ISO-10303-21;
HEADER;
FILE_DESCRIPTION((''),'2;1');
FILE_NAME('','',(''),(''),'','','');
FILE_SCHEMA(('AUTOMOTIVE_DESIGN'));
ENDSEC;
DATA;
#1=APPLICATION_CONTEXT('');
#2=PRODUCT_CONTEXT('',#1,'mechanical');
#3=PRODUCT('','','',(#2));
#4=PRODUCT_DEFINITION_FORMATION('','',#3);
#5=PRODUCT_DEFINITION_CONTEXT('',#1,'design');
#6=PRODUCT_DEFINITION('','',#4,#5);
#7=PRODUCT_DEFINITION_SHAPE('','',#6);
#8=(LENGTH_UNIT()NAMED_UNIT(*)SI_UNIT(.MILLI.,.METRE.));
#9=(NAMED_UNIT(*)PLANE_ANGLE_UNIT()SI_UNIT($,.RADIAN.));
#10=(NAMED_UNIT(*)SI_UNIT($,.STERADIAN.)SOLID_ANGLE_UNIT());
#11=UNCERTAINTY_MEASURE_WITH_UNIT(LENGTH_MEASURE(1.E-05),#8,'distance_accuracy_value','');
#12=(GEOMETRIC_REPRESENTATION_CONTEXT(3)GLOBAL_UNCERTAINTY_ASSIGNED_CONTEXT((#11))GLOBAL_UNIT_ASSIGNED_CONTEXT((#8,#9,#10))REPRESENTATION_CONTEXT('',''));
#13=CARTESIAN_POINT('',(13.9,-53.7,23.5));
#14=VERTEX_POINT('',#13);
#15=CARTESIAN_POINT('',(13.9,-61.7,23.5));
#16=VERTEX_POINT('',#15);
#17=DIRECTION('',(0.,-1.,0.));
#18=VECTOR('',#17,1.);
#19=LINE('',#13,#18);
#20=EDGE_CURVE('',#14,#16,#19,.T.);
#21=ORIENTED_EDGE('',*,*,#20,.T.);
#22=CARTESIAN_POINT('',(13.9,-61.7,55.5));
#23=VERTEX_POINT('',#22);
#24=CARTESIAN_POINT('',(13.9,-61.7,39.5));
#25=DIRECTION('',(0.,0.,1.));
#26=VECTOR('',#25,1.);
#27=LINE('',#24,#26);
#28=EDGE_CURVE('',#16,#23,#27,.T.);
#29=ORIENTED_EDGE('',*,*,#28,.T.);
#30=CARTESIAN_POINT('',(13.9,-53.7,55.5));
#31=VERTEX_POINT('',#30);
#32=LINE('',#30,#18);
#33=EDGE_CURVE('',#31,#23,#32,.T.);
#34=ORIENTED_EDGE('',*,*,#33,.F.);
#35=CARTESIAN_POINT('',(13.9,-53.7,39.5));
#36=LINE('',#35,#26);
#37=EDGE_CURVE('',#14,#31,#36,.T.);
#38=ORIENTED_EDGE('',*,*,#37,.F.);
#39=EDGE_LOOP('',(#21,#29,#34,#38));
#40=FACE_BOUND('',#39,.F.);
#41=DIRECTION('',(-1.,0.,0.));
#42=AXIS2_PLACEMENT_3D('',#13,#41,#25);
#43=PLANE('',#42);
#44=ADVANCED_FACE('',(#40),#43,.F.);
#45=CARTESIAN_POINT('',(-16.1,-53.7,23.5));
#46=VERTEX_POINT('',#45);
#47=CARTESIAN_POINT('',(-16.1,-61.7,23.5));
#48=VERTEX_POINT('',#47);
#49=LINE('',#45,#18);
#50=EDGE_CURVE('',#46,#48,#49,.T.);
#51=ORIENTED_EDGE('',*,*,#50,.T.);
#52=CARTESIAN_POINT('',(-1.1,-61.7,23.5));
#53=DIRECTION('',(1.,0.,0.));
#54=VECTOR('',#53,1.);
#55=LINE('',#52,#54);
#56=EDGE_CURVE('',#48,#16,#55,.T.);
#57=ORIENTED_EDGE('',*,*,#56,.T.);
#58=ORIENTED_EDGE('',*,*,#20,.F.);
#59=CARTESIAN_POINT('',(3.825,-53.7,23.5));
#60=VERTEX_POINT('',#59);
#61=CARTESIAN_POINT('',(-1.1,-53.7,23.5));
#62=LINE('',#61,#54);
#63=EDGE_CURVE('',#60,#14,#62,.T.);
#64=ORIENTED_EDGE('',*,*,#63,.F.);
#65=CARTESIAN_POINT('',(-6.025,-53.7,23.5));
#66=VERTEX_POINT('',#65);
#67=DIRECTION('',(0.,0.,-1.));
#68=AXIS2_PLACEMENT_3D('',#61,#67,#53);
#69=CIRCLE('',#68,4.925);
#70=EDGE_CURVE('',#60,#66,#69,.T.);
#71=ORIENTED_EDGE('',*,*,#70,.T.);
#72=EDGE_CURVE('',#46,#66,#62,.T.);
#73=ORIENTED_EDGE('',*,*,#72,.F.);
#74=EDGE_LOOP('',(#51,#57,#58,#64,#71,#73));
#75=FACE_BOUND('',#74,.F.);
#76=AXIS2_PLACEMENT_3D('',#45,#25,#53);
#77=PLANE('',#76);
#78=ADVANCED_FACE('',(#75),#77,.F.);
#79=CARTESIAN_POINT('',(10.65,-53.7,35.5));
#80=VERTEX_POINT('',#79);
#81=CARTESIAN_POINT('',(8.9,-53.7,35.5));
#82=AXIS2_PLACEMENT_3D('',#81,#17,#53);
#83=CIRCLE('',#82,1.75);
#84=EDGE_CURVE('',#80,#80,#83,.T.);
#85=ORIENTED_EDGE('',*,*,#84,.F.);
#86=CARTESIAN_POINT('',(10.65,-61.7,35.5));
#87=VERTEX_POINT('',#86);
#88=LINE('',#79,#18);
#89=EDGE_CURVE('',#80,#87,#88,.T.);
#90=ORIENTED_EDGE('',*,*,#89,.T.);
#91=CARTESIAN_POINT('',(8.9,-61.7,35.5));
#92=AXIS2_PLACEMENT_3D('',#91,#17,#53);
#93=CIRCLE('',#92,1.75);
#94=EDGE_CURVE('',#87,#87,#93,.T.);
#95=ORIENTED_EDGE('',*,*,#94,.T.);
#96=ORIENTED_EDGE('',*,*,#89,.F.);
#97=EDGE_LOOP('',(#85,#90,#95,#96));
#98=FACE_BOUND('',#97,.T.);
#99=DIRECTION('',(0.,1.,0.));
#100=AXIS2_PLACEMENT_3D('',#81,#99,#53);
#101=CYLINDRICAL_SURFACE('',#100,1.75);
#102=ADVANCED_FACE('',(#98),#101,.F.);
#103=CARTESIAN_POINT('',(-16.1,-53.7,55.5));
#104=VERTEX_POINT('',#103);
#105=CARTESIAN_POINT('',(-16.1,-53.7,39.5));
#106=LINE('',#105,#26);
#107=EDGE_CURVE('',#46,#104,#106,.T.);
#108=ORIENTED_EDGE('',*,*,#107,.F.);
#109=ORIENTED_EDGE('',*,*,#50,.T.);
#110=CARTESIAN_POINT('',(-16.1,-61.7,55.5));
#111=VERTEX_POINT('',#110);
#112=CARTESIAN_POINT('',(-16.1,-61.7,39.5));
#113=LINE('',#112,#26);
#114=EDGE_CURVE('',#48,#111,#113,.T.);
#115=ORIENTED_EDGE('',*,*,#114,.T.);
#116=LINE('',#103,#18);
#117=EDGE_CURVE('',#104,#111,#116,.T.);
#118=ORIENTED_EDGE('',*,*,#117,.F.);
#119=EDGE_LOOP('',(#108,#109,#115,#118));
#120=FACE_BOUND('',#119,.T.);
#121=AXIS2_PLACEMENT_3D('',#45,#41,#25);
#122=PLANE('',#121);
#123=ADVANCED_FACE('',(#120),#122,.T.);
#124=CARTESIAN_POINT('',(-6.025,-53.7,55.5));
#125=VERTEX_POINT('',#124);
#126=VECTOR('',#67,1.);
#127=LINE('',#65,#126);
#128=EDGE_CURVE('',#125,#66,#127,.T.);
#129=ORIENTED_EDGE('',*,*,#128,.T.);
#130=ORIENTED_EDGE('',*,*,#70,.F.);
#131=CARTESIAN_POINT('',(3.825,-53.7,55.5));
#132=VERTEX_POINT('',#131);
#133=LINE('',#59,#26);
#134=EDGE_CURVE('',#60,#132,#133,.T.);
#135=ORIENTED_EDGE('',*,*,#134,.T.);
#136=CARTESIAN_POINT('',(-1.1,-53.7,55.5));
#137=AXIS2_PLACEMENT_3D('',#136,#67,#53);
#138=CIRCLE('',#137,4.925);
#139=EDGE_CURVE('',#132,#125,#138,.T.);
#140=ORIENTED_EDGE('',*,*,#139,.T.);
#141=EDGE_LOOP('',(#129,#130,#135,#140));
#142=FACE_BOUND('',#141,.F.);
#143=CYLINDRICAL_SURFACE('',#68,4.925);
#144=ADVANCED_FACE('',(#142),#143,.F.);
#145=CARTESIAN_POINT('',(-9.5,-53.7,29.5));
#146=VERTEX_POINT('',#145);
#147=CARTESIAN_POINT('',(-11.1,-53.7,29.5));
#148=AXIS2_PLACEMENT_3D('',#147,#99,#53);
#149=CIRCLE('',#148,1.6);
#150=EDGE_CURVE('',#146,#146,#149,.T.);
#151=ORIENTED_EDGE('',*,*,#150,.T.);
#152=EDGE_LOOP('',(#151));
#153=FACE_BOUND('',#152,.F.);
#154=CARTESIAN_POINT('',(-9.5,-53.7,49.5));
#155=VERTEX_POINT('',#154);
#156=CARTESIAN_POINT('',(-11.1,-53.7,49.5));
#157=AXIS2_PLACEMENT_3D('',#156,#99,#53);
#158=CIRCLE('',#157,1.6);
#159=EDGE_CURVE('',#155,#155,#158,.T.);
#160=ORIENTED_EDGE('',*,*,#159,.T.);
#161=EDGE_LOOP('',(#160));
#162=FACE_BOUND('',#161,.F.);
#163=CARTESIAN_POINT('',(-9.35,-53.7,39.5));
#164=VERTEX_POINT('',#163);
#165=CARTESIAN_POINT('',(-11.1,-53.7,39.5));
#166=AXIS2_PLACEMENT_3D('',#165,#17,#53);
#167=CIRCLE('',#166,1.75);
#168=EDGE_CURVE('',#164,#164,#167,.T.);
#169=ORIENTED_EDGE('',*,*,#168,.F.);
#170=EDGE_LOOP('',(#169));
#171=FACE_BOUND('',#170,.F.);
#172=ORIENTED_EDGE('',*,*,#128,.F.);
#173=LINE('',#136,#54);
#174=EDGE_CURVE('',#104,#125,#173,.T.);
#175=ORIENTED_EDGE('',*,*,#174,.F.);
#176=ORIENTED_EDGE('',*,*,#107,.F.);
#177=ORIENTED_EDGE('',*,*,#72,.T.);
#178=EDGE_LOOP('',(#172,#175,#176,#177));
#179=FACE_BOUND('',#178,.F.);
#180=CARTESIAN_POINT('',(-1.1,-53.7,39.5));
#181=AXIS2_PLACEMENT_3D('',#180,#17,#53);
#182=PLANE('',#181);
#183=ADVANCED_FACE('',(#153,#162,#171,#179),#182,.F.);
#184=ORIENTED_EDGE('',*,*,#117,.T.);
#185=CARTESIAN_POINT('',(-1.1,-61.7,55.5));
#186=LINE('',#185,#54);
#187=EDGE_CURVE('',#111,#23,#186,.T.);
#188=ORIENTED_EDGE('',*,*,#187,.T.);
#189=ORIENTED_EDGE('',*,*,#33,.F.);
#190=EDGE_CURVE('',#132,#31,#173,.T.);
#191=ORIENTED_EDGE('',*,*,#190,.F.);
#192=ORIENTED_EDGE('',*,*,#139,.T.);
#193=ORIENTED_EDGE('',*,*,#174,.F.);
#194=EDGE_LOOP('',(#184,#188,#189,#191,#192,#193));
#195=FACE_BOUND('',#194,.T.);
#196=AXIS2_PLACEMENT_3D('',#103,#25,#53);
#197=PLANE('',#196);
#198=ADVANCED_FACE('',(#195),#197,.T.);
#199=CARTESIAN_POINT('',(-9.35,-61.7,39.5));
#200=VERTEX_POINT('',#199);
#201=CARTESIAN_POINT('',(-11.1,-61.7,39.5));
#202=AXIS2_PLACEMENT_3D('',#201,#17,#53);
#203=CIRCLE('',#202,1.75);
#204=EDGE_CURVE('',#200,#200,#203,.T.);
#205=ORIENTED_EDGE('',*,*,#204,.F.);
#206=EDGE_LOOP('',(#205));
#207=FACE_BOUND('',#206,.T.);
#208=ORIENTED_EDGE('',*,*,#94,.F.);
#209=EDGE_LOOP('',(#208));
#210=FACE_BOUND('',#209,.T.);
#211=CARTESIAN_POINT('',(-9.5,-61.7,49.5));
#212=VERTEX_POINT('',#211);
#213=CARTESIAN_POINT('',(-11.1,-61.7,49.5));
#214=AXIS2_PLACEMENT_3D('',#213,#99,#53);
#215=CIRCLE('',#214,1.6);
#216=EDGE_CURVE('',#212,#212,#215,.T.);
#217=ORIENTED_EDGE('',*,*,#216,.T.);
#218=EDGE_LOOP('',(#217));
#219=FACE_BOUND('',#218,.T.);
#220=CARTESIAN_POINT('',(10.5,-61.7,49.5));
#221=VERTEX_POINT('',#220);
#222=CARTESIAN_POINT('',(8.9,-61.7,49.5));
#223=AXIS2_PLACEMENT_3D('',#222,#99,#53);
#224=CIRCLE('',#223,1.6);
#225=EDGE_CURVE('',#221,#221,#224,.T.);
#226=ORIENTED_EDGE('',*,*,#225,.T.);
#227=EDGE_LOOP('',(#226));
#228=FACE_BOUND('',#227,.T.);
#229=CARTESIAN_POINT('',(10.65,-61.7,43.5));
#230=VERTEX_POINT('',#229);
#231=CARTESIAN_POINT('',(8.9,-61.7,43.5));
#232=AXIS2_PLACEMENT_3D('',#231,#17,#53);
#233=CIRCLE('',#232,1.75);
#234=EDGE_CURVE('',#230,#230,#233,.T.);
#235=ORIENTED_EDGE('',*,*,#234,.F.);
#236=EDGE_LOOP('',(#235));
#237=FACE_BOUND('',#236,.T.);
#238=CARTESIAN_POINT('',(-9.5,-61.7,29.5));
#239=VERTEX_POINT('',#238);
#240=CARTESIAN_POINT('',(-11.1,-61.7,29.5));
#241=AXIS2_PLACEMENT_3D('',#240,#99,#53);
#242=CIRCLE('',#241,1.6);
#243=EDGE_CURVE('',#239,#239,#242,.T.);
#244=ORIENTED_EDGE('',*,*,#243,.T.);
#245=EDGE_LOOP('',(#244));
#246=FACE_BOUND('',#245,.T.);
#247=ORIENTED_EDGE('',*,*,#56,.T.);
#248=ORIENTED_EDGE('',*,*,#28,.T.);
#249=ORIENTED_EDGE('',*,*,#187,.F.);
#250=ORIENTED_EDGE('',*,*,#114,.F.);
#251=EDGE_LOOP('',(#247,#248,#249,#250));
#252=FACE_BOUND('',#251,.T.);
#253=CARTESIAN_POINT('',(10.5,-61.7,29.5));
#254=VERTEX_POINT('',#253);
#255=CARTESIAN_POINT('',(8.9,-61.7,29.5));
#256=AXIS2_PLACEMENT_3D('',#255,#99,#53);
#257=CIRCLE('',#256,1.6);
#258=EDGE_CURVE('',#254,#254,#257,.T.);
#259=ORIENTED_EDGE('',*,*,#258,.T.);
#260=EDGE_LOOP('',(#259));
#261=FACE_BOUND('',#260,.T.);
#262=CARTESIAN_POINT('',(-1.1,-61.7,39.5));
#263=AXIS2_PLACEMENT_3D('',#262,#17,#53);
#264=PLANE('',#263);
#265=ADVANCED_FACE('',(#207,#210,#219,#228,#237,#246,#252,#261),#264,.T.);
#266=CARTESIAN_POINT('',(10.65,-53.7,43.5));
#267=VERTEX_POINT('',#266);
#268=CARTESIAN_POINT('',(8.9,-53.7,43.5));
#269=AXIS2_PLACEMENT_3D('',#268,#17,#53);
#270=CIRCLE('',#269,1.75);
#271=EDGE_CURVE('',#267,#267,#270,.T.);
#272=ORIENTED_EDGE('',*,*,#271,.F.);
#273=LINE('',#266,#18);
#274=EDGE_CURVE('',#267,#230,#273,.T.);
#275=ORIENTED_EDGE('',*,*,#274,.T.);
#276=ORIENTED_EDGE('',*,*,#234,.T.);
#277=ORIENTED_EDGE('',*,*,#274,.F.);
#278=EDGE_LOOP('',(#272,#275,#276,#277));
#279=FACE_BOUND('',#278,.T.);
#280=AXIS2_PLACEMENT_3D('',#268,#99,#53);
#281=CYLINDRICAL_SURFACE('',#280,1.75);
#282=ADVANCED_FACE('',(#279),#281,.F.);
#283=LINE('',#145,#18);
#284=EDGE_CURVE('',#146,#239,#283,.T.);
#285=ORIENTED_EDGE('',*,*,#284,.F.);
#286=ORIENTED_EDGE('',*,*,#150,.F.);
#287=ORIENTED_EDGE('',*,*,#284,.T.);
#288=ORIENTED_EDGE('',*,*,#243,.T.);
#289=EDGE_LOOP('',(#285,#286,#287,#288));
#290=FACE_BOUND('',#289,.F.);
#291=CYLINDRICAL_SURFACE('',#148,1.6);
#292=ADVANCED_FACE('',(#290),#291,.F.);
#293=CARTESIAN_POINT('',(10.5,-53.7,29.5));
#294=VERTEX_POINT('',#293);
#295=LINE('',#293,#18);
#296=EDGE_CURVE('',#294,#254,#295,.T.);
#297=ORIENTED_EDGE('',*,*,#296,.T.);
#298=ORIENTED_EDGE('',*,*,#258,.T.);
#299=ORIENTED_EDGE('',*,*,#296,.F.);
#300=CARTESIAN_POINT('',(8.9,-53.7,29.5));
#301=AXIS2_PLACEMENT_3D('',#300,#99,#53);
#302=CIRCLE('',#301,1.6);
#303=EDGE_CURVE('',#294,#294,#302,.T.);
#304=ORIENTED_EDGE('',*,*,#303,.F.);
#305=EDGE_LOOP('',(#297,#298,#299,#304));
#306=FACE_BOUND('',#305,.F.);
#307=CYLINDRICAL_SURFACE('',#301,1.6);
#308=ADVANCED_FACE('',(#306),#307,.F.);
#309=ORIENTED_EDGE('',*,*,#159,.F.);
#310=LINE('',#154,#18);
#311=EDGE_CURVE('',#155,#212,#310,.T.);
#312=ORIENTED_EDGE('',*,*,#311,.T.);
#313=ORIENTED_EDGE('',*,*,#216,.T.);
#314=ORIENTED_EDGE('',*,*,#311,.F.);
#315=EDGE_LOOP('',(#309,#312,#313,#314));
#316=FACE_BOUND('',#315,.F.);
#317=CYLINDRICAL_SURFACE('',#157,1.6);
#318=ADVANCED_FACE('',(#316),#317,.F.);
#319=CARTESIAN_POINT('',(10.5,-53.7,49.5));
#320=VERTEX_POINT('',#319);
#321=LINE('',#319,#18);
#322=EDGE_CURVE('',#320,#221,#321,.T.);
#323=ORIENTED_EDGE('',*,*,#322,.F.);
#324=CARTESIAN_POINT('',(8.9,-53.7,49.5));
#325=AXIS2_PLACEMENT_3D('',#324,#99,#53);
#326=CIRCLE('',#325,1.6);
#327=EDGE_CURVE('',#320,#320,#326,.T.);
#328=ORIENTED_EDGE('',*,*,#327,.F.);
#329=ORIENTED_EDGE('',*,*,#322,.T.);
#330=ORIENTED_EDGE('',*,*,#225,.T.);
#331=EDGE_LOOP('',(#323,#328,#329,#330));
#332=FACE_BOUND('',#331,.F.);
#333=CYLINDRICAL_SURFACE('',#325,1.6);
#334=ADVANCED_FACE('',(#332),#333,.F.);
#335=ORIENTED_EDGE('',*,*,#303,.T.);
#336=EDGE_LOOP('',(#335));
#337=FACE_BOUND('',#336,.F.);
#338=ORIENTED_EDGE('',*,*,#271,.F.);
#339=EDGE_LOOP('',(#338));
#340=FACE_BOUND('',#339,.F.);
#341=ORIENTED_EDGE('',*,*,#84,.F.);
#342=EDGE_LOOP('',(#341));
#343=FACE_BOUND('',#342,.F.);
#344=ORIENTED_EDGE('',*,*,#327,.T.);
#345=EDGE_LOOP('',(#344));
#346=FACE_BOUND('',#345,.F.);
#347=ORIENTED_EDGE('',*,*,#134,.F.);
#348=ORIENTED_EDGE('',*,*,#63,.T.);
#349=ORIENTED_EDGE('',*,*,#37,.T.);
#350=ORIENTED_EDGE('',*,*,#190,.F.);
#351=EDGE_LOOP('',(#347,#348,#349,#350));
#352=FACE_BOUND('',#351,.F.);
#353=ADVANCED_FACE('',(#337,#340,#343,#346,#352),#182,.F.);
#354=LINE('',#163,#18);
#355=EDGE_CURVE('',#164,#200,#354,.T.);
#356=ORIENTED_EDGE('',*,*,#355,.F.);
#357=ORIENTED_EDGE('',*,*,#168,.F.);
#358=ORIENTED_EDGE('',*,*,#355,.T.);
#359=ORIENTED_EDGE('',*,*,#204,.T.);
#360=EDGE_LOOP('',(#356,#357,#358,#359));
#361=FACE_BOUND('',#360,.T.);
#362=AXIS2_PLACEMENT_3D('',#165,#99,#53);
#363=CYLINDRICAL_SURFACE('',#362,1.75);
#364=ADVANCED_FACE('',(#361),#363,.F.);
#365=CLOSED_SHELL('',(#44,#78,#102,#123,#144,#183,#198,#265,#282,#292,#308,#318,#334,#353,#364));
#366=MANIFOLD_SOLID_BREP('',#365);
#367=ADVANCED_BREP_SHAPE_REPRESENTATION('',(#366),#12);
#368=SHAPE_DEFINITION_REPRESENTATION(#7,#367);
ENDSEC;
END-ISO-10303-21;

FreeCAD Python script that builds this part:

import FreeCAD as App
import Part
import Sketcher
Q = App.Units.Quantity


def add_polygon(sketch, points):
    """Adds a closed chain of lines whose ends are joined by coincident constraints."""
    first, n = sketch.GeometryCount, len(points)
    for a, b in zip(points, points[1:] + points[:1]):
        sketch.addGeometry(Part.LineSegment(App.Vector(*a, 0), App.Vector(*b, 0)), False)
    for i in range(n):
        sketch.addConstraint(Sketcher.Constraint("Coincident", first + i, 2, first + (i + 1) % n, 1))

doc = App.newDocument("Part")
body = doc.addObject("PartDesign::Body", "Body")

# Sketch on XZ plane
sketch1 = body.newObject("Sketcher::SketchObject", "Sketch")
sketch1.AttachmentSupport = (doc.getObject("XZ_Plane"), [""])
sketch1.MapMode = "FlatFace"
add_polygon(sketch1, [(-15, 16), (-15, -16), (15, -16), (15, 16)])  # lines 0-3
sketch1.addGeometry(Part.Circle(App.Vector(10, -4, 0), App.Vector(0, 0, 1), 1.8), False)  # 4
sketch1.addGeometry(Part.Circle(App.Vector(-10, 0, 0), App.Vector(0, 0, 1), 1.8), False)  # 5
sketch1.addGeometry(Part.Circle(App.Vector(10, 4, 0), App.Vector(0, 0, 1), 1.8), False)  # 6
sketch1.addConstraint(Sketcher.Constraint("Vertical", 0))
sketch1.addConstraint(Sketcher.Constraint("Horizontal", 1))
sketch1.addConstraint(Sketcher.Constraint("Vertical", 2))
sketch1.addConstraint(Sketcher.Constraint("Horizontal", 3))
sketch1.addConstraint(Sketcher.Constraint("Equal", 4, 5))
sketch1.addConstraint(Sketcher.Constraint("Equal", 5, 6))
sketch1.addConstraint(Sketcher.Constraint("Symmetric", 0, 2, 2, 2, -1, 1))
sketch1.addConstraint(Sketcher.Constraint("Symmetric", 4, 3, 6, 3, -1))
sketch1.addConstraint(Sketcher.Constraint("PointOnObject", 5, 3, -1))
sketch1.addConstraint(Sketcher.Constraint("Diameter", 4, Q("3.5 mm")))
sketch1.addConstraint(Sketcher.Constraint("DistanceX", 1, 1, 1, 2, Q("30 mm")))
sketch1.addConstraint(Sketcher.Constraint("DistanceY", 0, 2, 0, 1, Q("32 mm")))
sketch1.addConstraint(Sketcher.Constraint("DistanceX", -1, 1, 4, 3, Q("10 mm")))
sketch1.addConstraint(Sketcher.Constraint("DistanceY", 4, 3, -1, 1, Q("4 mm")))
sketch1.addConstraint(Sketcher.Constraint("DistanceX", 5, 3, -1, 1, Q("10 mm")))
pad1 = body.newObject("PartDesign::Pad", "Pad")
pad1.Profile = sketch1
pad1.Length = 8

# Sketch on XY plane
sketch2 = body.newObject("Sketcher::SketchObject", "Sketch001")
sketch2.AttachmentSupport = (doc.getObject("XY_Plane"), [""])
sketch2.MapMode = "FlatFace"
sketch2.AttachmentOffset = App.Placement(App.Vector(0, 0, -16), App.Rotation())
sketch2.addGeometry(Part.Circle(App.Vector(0, 0, 0), App.Vector(0, 0, 1), 4.9), False)
sketch2.addConstraint(Sketcher.Constraint("Coincident", 0, 3, -1, 1))
sketch2.addConstraint(Sketcher.Constraint("Diameter", 0, Q("9.85 mm")))
pocket1 = body.newObject("PartDesign::Pocket", "Pocket")
pocket1.Profile = sketch2
pocket1.Length = 38
pocket1.Reversed = True

# Sketch on XZ plane
sketch3 = body.newObject("Sketcher::SketchObject", "Sketch002")
sketch3.AttachmentSupport = (doc.getObject("XZ_Plane"), [""])
sketch3.MapMode = "FlatFace"
sketch3.addGeometry(Part.Circle(App.Vector(26.9, -5, 0), App.Vector(0, 0, 1), 1.6), False)
sketch3.addGeometry(Part.Circle(App.Vector(-10, -10, 0), App.Vector(0, 0, 1), 1.6), False)
sketch3.addGeometry(Part.Circle(App.Vector(10, -10, 0), App.Vector(0, 0, 1), 1.6), False)
sketch3.addGeometry(Part.Circle(App.Vector(10, 10, 0), App.Vector(0, 0, 1), 1.6), False)
sketch3.addGeometry(Part.Circle(App.Vector(-10, 10, 0), App.Vector(0, 0, 1), 1.6), False)
sketch3.addConstraint(Sketcher.Constraint("Equal", 0, 1))
sketch3.addConstraint(Sketcher.Constraint("Equal", 1, 2))
sketch3.addConstraint(Sketcher.Constraint("Equal", 2, 3))
sketch3.addConstraint(Sketcher.Constraint("Equal", 3, 4))
sketch3.addConstraint(Sketcher.Constraint("Symmetric", 1, 3, 3, 3, -1, 1))
sketch3.addConstraint(Sketcher.Constraint("Symmetric", 2, 3, 4, 3, -1, 1))
sketch3.addConstraint(Sketcher.Constraint("Symmetric", 1, 3, 2, 3, -2))
sketch3.addConstraint(Sketcher.Constraint("Diameter", 0, Q("3.2 mm")))
sketch3.addConstraint(Sketcher.Constraint("DistanceY", 0, 3, -1, 1, Q("5 mm")))
sketch3.addConstraint(Sketcher.Constraint("DistanceX", 1, 3, -1, 1, Q("10 mm")))
sketch3.addConstraint(Sketcher.Constraint("DistanceY", 1, 3, -1, 1, Q("10 mm")))
sketch3.addConstraint(Sketcher.Constraint("DistanceX", -1, 1, 0, 3, Q("26.925 mm")))
pocket2 = body.newObject("PartDesign::Pocket", "Pocket001")
pocket2.Profile = sketch3
pocket2.Length = 10
pocket2.Reversed = True
body2 = doc.addObject("PartDesign::Body", "Body001")
doc.recompute()

body.Placement = App.Placement(App.Vector(-1.1, -53.7, 39.5), App.Rotation(App.Vector(0, 0, 1), 0))
boolean = body2.newObject("PartDesign::Boolean", "Boolean")
boolean.Type = "Fuse"
boolean.addObjects([body])

doc.recompute()
